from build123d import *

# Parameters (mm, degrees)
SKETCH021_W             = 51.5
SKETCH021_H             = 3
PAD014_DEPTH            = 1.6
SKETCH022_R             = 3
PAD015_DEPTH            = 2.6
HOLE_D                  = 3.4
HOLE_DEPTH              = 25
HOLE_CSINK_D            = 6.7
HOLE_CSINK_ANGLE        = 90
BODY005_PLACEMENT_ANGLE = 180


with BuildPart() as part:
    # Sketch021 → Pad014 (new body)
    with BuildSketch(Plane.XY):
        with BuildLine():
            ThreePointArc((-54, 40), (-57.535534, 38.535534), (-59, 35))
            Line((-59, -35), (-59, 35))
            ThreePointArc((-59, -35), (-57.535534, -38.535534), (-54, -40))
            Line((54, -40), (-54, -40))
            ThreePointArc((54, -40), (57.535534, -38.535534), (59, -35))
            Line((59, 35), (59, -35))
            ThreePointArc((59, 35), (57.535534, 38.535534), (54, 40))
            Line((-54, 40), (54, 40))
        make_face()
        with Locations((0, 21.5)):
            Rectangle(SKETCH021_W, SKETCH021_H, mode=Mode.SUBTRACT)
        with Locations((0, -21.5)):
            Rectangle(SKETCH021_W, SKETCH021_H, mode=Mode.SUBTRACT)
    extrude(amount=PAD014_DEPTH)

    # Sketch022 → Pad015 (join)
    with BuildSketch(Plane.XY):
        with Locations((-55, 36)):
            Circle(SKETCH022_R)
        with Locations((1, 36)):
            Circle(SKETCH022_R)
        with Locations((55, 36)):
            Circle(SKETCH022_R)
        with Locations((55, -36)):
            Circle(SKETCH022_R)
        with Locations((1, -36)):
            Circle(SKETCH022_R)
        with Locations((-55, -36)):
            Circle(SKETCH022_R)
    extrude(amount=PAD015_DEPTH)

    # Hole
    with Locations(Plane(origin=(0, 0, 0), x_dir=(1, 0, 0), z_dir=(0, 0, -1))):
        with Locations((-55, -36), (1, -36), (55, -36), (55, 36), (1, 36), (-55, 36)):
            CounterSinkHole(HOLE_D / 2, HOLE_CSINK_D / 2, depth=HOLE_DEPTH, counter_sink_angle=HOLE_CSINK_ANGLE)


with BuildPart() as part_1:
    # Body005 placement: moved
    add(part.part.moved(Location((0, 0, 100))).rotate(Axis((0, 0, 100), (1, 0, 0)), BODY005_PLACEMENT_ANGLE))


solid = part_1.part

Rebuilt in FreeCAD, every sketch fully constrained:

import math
import FreeCAD as App
import Part
import Sketcher
from FreeCAD import Vector

doc = App.newDocument("Part")
body = doc.addObject("PartDesign::Body", "Body")

# Sketch on XY plane
sketch1 = body.newObject("Sketcher::SketchObject", "Sketch")
sketch1.AttachmentSupport = (doc.getObject("XY_Plane"), [""])
sketch1.MapMode = "FlatFace"
sketch1.addGeometry([
    Part.ArcOfCircle(Part.Circle(Vector(-54, 35, 0), Vector(0, 0, 1), 5), math.radians(89.999996), math.radians(180.000004)),  # 0
    Part.LineSegment(Vector(-59, 35, 0), Vector(-59, -35, 0)),  # 1
    Part.ArcOfCircle(Part.Circle(Vector(-54, -35, 0), Vector(0, 0, 1), 5), math.radians(179.999996), math.radians(270.000004)),  # 2
    Part.LineSegment(Vector(-54, -40, 0), Vector(54, -40, 0)),  # 3
    Part.ArcOfCircle(Part.Circle(Vector(54, -35, 0), Vector(0, 0, 1), 5), math.radians(-90.000004), math.radians(0.000004)),  # 4
    Part.LineSegment(Vector(59, -35, 0), Vector(59, 35, 0)),  # 5
    Part.ArcOfCircle(Part.Circle(Vector(54, 35, 0), Vector(0, 0, 1), 5), math.radians(-0.000004), math.radians(90.000004)),  # 6
    Part.LineSegment(Vector(54, 40, 0), Vector(-54, 40, 0)),  # 7
    Part.LineSegment(Vector(25.75, -23, 0), Vector(-25.75, -23, 0)),  # 8
    Part.LineSegment(Vector(-25.75, -23, 0), Vector(-25.75, -20, 0)),  # 9
    Part.LineSegment(Vector(-25.75, -20, 0), Vector(25.75, -20, 0)),  # 10
    Part.LineSegment(Vector(25.75, -20, 0), Vector(25.75, -23, 0)),  # 11
    Part.LineSegment(Vector(25.75, 20, 0), Vector(-25.75, 20, 0)),  # 12
    Part.LineSegment(Vector(-25.75, 20, 0), Vector(-25.75, 23, 0)),  # 13
    Part.LineSegment(Vector(-25.75, 23, 0), Vector(25.75, 23, 0)),  # 14
    Part.LineSegment(Vector(25.75, 23, 0), Vector(25.75, 20, 0)),  # 15
], False)
sketch1.addConstraint([
    Sketcher.Constraint("Tangent", 0, 2, 1, 1),
    Sketcher.Constraint("Tangent", 1, 2, 2, 1),
    Sketcher.Constraint("Tangent", 2, 2, 3, 1),
    Sketcher.Constraint("Tangent", 3, 2, 4, 1),
    Sketcher.Constraint("Tangent", 4, 2, 5, 1),
    Sketcher.Constraint("Tangent", 5, 2, 6, 1),
    Sketcher.Constraint("Tangent", 6, 2, 7, 1),
    Sketcher.Constraint("Tangent", 7, 2, 0, 1),
    Sketcher.Constraint("Coincident", 8, 2, 9, 1),
    Sketcher.Constraint("Coincident", 9, 2, 10, 1),
    Sketcher.Constraint("Coincident", 10, 2, 11, 1),
    Sketcher.Constraint("Coincident", 11, 2, 8, 1),
    Sketcher.Constraint("Coincident", 12, 2, 13, 1),
    Sketcher.Constraint("Coincident", 13, 2, 14, 1),
    Sketcher.Constraint("Coincident", 14, 2, 15, 1),
    Sketcher.Constraint("Coincident", 15, 2, 12, 1),
    Sketcher.Constraint("Vertical", 1),
    Sketcher.Constraint("Horizontal", 3),
    Sketcher.Constraint("Vertical", 5),
    Sketcher.Constraint("Horizontal", 7),
    Sketcher.Constraint("Horizontal", 8),
    Sketcher.Constraint("Vertical", 9),
    Sketcher.Constraint("Horizontal", 10),
    Sketcher.Constraint("Vertical", 11),
    Sketcher.Constraint("Horizontal", 12),
    Sketcher.Constraint("Vertical", 13),
    Sketcher.Constraint("Horizontal", 14),
    Sketcher.Constraint("Vertical", 15),
    Sketcher.Constraint("Equal", 0, 2),
    Sketcher.Constraint("Equal", 2, 4),
    Sketcher.Constraint("Equal", 4, 6),
    Sketcher.Constraint("Symmetric", 0, 3, 4, 3, -1, 1),
    Sketcher.Constraint("Symmetric", 10, 2, 12, 2, -1, 1),
    Sketcher.Constraint("Symmetric", 8, 2, 14, 2, -1, 1),
    Sketcher.Constraint("Vertical", 9, 2, 12, 2),
    Sketcher.Constraint("Radius", 0, 5.0),
    Sketcher.Constraint("DistanceX", 3, 1, 3, 2, 108.0),
    Sketcher.Constraint("DistanceY", 1, 2, 1, 1, 70.0),
    Sketcher.Constraint("DistanceY", 9, 1, 9, 2, 3.0),
    Sketcher.Constraint("DistanceX", 8, 2, 8, 1, 51.5),
    Sketcher.Constraint("DistanceY", 8, 2, -1, 1, 23.0),
])
pad1 = body.newObject("PartDesign::Pad", "Pad")
pad1.Profile = sketch1
pad1.Length = 1.6

# Sketch on XY plane
sketch2 = body.newObject("Sketcher::SketchObject", "Sketch001")
sketch2.AttachmentSupport = (doc.getObject("XY_Plane"), [""])
sketch2.MapMode = "FlatFace"
sketch2.addGeometry([
    Part.Circle(Vector(-55, 36, 0), Vector(0, 0, 1), 3),  # 0
    Part.Circle(Vector(1, 36, 0), Vector(0, 0, 1), 3),  # 1
    Part.Circle(Vector(55, 36, 0), Vector(0, 0, 1), 3),  # 2
    Part.Circle(Vector(55, -36, 0), Vector(0, 0, 1), 3),  # 3
    Part.Circle(Vector(1, -36, 0), Vector(0, 0, 1), 3),  # 4
    Part.Circle(Vector(-55, -36, 0), Vector(0, 0, 1), 3),  # 5
], False)
sketch2.addConstraint([
    Sketcher.Constraint("Equal", 0, 1),
    Sketcher.Constraint("Equal", 1, 2),
    Sketcher.Constraint("Equal", 2, 3),
    Sketcher.Constraint("Equal", 3, 4),
    Sketcher.Constraint("Equal", 4, 5),
    Sketcher.Constraint("Symmetric", 0, 3, 3, 3, -1, 1),
    Sketcher.Constraint("Symmetric", 2, 3, 5, 3, -1, 1),
    Sketcher.Constraint("Symmetric", 0, 3, 2, 3, -2),
    Sketcher.Constraint("Symmetric", 1, 3, 4, 3, -1),
    Sketcher.Constraint("Horizontal", 0, 3, 1, 3),
    Sketcher.Constraint("Diameter", 0, 6.0),
    Sketcher.Constraint("DistanceX", 0, 3, -1, 1, 55.0),
    Sketcher.Constraint("DistanceY", -1, 1, 0, 3, 36.0),
    Sketcher.Constraint("DistanceX", -1, 1, 1, 3, 1.0),
])
pad2 = body.newObject("PartDesign::Pad", "Pad001")
pad2.Profile = sketch2
pad2.Length = 2.6

# Sketch on XY plane
sketch3 = body.newObject("Sketcher::SketchObject", "Sketch002")
sketch3.AttachmentSupport = (doc.getObject("XY_Plane"), [""])
sketch3.MapMode = "FlatFace"
sketch3.addGeometry([
    Part.Circle(Vector(-55, 36, 0), Vector(0, 0, 1), 1.7),  # 0
    Part.Circle(Vector(1, 36, 0), Vector(0, 0, 1), 1.7),  # 1
    Part.Circle(Vector(55, 36, 0), Vector(0, 0, 1), 1.7),  # 2
    Part.Circle(Vector(55, -36, 0), Vector(0, 0, 1), 1.7),  # 3
    Part.Circle(Vector(1, -36, 0), Vector(0, 0, 1), 1.7),  # 4
    Part.Circle(Vector(-55, -36, 0), Vector(0, 0, 1), 1.7),  # 5
], False)
sketch3.addConstraint([
    Sketcher.Constraint("Equal", 0, 1),
    Sketcher.Constraint("Equal", 1, 2),
    Sketcher.Constraint("Equal", 2, 3),
    Sketcher.Constraint("Equal", 3, 4),
    Sketcher.Constraint("Equal", 4, 5),
    Sketcher.Constraint("Symmetric", 0, 3, 3, 3, -1, 1),
    Sketcher.Constraint("Symmetric", 2, 3, 5, 3, -1, 1),
    Sketcher.Constraint("Symmetric", 0, 3, 2, 3, -2),
    Sketcher.Constraint("Symmetric", 1, 3, 4, 3, -1),
    Sketcher.Constraint("Horizontal", 0, 3, 1, 3),
    Sketcher.Constraint("Diameter", 0, 3.4),
    Sketcher.Constraint("DistanceX", 0, 3, -1, 1, 55.0),
    Sketcher.Constraint("DistanceY", -1, 1, 0, 3, 36.0),
    Sketcher.Constraint("DistanceX", -1, 1, 1, 3, 1.0),
])
doc.recompute()
hole = body.newObject("PartDesign::Hole", "Hole")
hole.Profile = sketch3
hole.ThreadType = "None"
hole.Diameter = 3.4
hole.DepthType = "Dimension"
hole.Depth = 25
hole.DrillPoint = "Flat"
hole.HoleCutType = "Countersink"
hole.HoleCutDiameter = 6.7
hole.HoleCutCountersinkAngle = 90
hole.Reversed = True
body2 = doc.addObject("PartDesign::Body", "Body001")
doc.recompute()

body.Placement = App.Placement(Vector(0, 0, 100), App.Rotation(Vector(1, 0, 0), 180))
boolean = body2.newObject("PartDesign::Boolean", "Boolean")
boolean.Type = "Fuse"
boolean.addObjects([body])

doc.recompute()
